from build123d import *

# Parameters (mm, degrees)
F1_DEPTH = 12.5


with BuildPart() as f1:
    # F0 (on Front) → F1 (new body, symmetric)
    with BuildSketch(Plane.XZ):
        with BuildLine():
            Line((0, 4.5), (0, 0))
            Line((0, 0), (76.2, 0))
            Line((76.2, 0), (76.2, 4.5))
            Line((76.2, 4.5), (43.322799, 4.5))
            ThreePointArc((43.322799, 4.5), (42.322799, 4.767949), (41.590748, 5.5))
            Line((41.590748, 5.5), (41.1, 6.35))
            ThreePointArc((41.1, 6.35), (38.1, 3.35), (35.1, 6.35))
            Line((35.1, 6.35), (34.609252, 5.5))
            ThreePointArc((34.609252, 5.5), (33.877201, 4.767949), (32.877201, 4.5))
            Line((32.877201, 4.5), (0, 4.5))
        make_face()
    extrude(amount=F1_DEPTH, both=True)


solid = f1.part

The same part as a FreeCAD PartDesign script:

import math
import FreeCAD as App
import Part
import Sketcher
Q = App.Units.Quantity

doc = App.newDocument("Part")
body = doc.addObject("PartDesign::Body", "Body")

# Sketch on XZ plane
sketch1 = doc.addObject("Sketcher::SketchObject", "Sketch")
body.addObject(sketch1)
sketch1.AttachmentSupport = (doc.XZ_Plane, [""])
sketch1.MapMode = "FlatFace"
sketch1.addGeometry([
    Part.LineSegment(App.Vector(0, 4.5, 0), App.Vector(0, 0, 0)),  # 0
    Part.LineSegment(App.Vector(0, 0, 0), App.Vector(76.2, 0, 0)),  # 1
    Part.LineSegment(App.Vector(76.2, 0, 0), App.Vector(76.2, 4.5, 0)),  # 2
    Part.LineSegment(App.Vector(76.2, 4.5, 0), App.Vector(43.322799, 4.5, 0)),  # 3
    Part.ArcOfCircle(Part.Circle(App.Vector(43.322799, 6.5, 0), App.Vector(0, 0, 1), 2), math.radians(-150.000008), math.radians(-89.999987)),  # 4
    Part.LineSegment(App.Vector(41.590748, 5.5, 0), App.Vector(41.1, 6.35, 0)),  # 5
    Part.ArcOfCircle(Part.Circle(App.Vector(38.1, 6.35, 0), App.Vector(0, 0, 1), 3), math.radians(180), math.radians(360)),  # 6
    Part.LineSegment(App.Vector(35.1, 6.35, 0), App.Vector(34.609252, 5.5, 0)),  # 7
    Part.ArcOfCircle(Part.Circle(App.Vector(32.877201, 6.5, 0), App.Vector(0, 0, 1), 2), math.radians(-90.000013), math.radians(-29.999992)),  # 8
    Part.LineSegment(App.Vector(32.877201, 4.5, 0), App.Vector(0, 4.5, 0)),  # 9
], False)
sketch1.addConstraint([
    Sketcher.Constraint("Coincident", 0, 2, 1, 1),
    Sketcher.Constraint("Coincident", 1, 2, 2, 1),
    Sketcher.Constraint("Coincident", 2, 2, 3, 1),
    Sketcher.Constraint("Tangent", 3, 2, 4, 2),
    Sketcher.Constraint("Tangent", 4, 1, 5, 1),
    Sketcher.Constraint("Coincident", 5, 2, 6, 2),
    Sketcher.Constraint("Coincident", 6, 1, 7, 1),
    Sketcher.Constraint("Tangent", 7, 2, 8, 2),
    Sketcher.Constraint("Tangent", 8, 1, 9, 1),
    Sketcher.Constraint("Coincident", 9, 2, 0, 1),
    Sketcher.Constraint("Vertical", 0),
    Sketcher.Constraint("Horizontal", 1),
    Sketcher.Constraint("Vertical", 2),
    Sketcher.Constraint("Horizontal", 3),
    Sketcher.Constraint("Horizontal", 9),
    Sketcher.Constraint("Coincident", 0, 2, -1, 1),
    Sketcher.Constraint("Equal", 4, 8),
    Sketcher.Constraint("Horizontal", 4, 3, 8, 3),
    Sketcher.Constraint("Horizontal", 6, 3, 5, 2),
    Sketcher.Constraint("Horizontal", 5, 2, 6, 1),
    Sketcher.Constraint("Horizontal", 4, 1, 7, 2),
    Sketcher.Constraint("Equal", 3, 9),
    Sketcher.Constraint("Radius", 4, Q("2 mm")),
    Sketcher.Constraint("Radius", 6, Q("3 mm")),
    Sketcher.Constraint("Angle", 5, Q("120.000014 deg")),
    Sketcher.Constraint("DistanceX", 1, 1, 1, 2, Q("76.2 mm")),
    Sketcher.Constraint("DistanceY", 0, 2, 0, 1, Q("4.5 mm")),
    Sketcher.Constraint("DistanceY", -1, 1, 6, 3, Q("6.35 mm")),
])
pad1 = doc.addObject("PartDesign::Pad", "Pad")
body.addObject(pad1)
pad1.Profile = sketch1
pad1.Length = 25
pad1.Midplane = True

doc.recompute()
